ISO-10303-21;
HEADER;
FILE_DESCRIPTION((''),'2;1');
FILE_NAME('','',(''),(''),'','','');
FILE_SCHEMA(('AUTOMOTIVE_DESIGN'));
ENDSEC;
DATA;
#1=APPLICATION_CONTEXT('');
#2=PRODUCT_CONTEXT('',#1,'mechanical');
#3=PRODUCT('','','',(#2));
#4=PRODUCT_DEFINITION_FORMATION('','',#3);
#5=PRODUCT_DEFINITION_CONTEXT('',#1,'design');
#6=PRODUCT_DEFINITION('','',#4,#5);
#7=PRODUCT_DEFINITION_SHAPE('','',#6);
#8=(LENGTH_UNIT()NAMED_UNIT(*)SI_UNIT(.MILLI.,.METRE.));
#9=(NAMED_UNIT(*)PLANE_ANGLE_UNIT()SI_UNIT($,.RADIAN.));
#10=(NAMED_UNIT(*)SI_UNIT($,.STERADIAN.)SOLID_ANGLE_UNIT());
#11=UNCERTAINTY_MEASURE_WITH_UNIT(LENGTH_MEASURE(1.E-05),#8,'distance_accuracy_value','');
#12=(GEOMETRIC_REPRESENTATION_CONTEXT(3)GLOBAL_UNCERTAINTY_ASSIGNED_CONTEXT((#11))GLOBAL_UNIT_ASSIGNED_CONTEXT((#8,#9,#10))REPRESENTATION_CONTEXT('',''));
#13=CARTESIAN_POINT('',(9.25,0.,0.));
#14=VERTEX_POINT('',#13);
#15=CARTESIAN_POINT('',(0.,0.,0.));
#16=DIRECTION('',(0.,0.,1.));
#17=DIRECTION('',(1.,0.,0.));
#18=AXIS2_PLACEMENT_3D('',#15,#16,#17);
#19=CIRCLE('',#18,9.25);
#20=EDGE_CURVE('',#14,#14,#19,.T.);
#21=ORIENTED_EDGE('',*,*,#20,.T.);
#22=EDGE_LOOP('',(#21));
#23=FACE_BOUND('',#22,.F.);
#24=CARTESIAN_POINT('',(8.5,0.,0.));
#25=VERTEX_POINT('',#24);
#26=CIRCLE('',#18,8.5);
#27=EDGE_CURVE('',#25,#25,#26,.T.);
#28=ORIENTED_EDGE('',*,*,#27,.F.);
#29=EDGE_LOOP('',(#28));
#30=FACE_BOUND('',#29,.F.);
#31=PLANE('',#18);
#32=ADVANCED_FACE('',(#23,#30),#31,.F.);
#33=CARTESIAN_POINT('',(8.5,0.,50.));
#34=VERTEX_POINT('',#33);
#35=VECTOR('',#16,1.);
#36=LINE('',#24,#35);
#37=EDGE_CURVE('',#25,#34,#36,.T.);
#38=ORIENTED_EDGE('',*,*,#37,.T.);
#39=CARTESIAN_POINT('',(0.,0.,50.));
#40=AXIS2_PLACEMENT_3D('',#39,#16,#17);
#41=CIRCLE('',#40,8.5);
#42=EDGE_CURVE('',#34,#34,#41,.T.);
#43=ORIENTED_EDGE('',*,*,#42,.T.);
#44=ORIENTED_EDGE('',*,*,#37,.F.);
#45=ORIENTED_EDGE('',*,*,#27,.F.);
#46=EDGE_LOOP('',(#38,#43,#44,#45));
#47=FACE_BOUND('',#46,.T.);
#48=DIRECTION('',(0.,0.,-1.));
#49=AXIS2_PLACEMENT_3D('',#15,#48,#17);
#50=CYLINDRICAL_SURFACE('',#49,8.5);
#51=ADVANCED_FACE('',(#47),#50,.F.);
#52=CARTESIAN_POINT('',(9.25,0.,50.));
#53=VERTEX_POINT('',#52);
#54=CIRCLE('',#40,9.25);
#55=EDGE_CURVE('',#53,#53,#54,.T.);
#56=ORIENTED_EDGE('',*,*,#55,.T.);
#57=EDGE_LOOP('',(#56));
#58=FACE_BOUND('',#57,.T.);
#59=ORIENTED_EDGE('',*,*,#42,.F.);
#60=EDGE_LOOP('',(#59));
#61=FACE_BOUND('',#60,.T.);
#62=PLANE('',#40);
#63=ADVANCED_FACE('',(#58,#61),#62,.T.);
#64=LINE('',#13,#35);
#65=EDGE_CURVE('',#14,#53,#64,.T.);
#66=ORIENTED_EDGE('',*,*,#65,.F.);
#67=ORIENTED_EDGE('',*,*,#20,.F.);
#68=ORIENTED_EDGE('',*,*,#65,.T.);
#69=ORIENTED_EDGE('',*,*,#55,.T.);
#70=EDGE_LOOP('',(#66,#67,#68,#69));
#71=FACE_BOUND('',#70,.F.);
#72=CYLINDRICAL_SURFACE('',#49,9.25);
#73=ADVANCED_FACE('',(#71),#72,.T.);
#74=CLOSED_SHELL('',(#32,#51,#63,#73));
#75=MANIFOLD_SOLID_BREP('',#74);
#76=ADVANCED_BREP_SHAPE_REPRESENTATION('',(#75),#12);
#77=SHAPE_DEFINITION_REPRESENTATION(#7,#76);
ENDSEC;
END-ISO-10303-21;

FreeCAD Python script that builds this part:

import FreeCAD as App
import Part
import Sketcher
Q = App.Units.Quantity

doc = App.newDocument("Part")
body = doc.addObject("PartDesign::Body", "Body")

# Sketch on XY plane
sketch1 = doc.addObject("Sketcher::SketchObject", "Sketch")
body.addObject(sketch1)
sketch1.AttachmentSupport = (doc.XY_Plane, [""])
sketch1.MapMode = "FlatFace"
sketch1.addGeometry(Part.Circle(App.Vector(0, 0, 0), App.Vector(0, 0, 1), 9), False)
sketch1.addGeometry(Part.Circle(App.Vector(0, 0, 0), App.Vector(0, 0, 1), 8), False)
sketch1.addConstraint(Sketcher.Constraint("Coincident", 0, 3, -1, 1))
sketch1.addConstraint(Sketcher.Constraint("Coincident", 1, 3, -1, 1))
sketch1.addConstraint(Sketcher.Constraint("Diameter", 1, Q("17 mm")))
sketch1.addConstraint(Sketcher.Constraint("Diameter", 0, Q("18.5 mm")))
pad1 = doc.addObject("PartDesign::Pad", "Pad")
body.addObject(pad1)
pad1.Profile = sketch1
pad1.Length = 50

doc.recompute()
